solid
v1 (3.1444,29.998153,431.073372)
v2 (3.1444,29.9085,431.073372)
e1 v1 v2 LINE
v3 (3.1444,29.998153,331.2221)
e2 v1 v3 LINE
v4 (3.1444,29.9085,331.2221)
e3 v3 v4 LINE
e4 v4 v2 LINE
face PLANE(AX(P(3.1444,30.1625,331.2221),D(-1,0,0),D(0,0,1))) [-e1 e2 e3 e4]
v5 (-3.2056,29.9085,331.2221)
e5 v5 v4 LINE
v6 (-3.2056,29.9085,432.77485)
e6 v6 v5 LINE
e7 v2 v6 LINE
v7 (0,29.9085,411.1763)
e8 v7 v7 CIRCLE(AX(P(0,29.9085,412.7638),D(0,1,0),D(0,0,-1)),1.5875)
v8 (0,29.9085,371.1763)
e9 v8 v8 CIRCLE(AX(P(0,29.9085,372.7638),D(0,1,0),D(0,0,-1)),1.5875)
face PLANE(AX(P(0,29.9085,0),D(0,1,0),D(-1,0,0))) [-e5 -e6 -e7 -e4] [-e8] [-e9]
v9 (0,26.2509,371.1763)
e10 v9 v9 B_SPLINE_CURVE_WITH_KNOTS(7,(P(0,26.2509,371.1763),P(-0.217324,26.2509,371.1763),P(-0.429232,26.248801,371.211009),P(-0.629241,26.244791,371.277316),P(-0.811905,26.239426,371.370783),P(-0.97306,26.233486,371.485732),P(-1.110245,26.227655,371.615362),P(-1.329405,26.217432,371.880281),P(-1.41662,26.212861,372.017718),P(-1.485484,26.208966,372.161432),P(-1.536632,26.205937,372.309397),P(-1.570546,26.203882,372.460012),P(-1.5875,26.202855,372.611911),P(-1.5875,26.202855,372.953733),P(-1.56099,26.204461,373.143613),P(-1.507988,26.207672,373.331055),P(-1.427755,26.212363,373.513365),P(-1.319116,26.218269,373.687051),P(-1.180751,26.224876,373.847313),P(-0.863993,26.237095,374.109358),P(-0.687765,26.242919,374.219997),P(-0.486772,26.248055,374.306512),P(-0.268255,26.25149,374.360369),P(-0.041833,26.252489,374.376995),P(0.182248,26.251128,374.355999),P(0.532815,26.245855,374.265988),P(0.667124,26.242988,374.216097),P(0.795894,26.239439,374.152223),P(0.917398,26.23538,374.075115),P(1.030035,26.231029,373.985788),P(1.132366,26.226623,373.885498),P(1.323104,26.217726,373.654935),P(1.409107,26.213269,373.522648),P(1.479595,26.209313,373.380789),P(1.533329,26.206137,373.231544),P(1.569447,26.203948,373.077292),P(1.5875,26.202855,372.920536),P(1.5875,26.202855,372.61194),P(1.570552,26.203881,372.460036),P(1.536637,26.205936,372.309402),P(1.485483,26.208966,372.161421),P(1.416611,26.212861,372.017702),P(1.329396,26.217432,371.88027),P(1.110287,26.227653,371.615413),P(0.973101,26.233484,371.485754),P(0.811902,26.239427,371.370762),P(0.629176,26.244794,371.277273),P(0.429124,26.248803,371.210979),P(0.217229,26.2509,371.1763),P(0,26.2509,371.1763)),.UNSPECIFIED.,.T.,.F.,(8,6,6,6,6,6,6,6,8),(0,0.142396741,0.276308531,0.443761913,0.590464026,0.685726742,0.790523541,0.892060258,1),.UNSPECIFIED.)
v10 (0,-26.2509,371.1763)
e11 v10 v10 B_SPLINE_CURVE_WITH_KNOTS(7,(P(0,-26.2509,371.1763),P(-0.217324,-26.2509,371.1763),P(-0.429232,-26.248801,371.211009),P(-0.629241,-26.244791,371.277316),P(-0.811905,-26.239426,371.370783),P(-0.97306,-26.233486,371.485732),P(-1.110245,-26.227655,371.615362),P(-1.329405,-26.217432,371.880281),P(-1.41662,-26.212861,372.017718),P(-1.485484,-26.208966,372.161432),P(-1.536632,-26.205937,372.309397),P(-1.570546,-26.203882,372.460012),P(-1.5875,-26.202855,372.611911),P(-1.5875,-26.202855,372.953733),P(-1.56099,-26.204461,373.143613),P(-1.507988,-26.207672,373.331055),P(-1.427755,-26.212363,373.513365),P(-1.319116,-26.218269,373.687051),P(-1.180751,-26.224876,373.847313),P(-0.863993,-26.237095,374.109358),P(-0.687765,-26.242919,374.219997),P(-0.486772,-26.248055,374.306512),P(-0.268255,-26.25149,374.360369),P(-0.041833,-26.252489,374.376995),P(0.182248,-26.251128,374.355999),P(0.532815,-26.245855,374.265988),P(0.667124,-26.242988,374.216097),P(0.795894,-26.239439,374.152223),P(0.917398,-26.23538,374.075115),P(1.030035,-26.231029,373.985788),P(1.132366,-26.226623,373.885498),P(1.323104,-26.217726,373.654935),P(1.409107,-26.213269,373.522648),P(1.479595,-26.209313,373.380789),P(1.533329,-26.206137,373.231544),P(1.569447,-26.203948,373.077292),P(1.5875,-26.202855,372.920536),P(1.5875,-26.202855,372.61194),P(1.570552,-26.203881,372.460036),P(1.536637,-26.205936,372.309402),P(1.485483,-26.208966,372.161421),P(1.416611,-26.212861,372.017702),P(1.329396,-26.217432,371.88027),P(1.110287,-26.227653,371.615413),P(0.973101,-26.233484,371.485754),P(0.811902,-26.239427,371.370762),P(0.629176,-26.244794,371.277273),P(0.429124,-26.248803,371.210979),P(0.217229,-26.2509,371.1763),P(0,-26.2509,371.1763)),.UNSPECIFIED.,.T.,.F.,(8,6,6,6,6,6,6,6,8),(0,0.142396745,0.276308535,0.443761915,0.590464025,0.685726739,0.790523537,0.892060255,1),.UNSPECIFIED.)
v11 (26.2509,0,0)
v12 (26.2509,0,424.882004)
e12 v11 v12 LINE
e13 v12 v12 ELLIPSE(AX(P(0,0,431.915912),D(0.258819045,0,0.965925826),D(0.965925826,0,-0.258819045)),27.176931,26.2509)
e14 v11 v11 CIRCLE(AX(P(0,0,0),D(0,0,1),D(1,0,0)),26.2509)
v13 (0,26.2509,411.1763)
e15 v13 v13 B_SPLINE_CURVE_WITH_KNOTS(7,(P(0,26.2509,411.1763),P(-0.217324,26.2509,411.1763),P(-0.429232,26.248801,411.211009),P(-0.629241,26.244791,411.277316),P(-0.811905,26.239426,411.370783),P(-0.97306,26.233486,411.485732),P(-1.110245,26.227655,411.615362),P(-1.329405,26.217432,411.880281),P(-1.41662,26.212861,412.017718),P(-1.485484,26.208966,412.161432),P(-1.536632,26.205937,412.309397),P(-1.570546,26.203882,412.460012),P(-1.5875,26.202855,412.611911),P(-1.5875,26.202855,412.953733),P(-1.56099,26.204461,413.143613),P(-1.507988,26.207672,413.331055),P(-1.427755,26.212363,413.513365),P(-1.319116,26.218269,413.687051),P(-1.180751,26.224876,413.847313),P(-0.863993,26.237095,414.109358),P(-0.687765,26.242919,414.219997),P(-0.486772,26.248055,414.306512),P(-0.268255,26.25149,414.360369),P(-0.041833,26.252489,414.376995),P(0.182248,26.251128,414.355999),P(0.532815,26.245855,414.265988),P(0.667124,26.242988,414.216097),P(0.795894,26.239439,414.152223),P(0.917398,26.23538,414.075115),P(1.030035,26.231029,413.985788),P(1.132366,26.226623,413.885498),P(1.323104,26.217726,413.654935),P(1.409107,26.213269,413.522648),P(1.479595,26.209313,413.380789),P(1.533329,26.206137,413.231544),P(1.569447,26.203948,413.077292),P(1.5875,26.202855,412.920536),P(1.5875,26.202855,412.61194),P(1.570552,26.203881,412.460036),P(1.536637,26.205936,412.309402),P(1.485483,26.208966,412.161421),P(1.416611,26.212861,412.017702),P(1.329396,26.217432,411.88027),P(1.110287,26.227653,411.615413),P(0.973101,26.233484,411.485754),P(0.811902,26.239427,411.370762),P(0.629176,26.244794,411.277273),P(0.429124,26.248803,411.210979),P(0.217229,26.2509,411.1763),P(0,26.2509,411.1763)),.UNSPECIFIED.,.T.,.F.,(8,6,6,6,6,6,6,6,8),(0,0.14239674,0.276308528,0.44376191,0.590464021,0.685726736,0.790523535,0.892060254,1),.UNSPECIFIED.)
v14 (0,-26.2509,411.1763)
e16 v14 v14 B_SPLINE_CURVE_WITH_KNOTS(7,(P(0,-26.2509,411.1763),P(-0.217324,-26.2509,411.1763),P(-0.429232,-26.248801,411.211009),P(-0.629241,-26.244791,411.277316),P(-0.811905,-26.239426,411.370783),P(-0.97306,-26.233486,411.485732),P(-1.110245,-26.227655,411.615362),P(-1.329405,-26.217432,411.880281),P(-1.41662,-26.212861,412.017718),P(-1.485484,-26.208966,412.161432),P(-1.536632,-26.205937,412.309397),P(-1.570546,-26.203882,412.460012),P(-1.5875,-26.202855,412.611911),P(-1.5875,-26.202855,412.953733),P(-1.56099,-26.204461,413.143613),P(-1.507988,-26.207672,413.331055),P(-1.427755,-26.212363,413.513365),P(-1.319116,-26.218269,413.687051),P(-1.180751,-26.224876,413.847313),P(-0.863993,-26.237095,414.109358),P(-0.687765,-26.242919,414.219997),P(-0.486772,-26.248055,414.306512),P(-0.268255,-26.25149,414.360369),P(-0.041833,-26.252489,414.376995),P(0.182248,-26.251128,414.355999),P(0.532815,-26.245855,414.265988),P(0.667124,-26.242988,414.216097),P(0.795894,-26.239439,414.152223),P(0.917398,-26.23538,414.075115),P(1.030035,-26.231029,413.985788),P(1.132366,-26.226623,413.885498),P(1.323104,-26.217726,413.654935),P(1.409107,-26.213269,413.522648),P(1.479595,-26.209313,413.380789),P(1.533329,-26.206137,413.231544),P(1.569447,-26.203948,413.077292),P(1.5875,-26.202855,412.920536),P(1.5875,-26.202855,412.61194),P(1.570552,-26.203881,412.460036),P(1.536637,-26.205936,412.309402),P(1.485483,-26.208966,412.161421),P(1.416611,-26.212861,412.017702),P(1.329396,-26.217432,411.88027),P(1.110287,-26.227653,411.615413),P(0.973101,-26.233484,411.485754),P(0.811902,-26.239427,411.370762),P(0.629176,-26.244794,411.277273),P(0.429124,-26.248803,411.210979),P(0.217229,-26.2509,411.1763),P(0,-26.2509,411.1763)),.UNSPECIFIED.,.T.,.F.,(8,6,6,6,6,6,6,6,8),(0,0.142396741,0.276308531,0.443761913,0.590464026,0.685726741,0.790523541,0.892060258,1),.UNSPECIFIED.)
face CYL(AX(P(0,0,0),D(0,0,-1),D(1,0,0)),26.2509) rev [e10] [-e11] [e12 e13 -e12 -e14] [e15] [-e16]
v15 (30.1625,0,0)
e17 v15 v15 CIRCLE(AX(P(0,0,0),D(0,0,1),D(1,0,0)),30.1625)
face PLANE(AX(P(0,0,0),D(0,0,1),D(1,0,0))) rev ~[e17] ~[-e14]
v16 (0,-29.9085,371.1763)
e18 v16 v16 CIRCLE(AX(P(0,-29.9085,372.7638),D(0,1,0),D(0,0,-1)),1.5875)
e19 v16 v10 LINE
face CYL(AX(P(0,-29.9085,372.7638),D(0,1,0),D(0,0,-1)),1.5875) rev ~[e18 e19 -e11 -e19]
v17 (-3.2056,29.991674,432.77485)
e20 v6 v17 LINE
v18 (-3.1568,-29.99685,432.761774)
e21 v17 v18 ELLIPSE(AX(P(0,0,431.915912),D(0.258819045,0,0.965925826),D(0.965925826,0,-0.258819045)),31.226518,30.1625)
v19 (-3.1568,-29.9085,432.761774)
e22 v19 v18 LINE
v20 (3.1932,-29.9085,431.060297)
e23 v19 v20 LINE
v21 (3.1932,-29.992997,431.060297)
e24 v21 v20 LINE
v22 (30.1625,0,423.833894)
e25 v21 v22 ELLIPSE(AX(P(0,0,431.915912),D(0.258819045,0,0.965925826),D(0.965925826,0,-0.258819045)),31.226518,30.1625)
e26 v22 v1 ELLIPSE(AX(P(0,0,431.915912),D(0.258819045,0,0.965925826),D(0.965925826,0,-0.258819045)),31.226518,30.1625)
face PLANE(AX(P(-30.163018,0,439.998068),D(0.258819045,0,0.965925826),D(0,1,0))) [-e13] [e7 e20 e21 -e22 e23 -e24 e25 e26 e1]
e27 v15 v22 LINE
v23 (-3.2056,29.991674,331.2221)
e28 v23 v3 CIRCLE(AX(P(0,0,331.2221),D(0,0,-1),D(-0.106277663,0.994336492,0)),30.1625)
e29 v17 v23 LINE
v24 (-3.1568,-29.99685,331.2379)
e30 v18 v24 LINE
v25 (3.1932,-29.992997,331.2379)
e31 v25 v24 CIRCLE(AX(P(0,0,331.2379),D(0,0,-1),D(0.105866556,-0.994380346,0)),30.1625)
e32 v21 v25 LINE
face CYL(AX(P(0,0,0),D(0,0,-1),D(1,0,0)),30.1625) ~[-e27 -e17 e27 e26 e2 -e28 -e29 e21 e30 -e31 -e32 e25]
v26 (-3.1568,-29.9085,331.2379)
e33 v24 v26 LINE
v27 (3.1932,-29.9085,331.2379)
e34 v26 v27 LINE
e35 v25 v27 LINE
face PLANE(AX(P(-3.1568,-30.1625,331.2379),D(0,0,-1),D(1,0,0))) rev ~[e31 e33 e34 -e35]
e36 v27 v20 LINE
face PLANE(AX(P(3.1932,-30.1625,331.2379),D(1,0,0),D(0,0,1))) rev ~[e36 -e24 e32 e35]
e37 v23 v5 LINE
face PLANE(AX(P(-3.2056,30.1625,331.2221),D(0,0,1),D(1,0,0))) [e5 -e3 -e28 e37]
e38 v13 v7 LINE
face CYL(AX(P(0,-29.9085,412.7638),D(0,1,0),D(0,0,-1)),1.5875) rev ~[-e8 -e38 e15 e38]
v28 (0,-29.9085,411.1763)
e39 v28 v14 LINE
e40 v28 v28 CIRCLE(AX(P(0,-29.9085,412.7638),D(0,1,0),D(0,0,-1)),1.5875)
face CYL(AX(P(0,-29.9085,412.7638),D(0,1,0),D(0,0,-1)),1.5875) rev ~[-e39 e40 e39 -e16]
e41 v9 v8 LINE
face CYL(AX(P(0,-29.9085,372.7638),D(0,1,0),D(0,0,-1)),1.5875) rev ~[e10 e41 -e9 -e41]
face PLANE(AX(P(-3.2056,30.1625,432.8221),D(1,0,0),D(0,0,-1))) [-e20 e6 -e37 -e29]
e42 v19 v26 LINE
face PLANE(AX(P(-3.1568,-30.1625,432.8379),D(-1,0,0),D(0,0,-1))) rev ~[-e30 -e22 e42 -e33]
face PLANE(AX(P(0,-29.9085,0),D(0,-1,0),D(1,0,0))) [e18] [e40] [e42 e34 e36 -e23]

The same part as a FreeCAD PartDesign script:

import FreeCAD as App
import Part
import Sketcher
from FreeCAD import Vector
Q = App.Units.Quantity

doc = App.newDocument("Part")
params = doc.addObject("Spreadsheet::Sheet", "Params")
for row, (alias, value) in enumerate([
    ("sketch1_diameter", "2.375 in"),
    ("sketch1_diameter2", "2.067 in"),
    ("pad1_length", "440 mm"),
    ("sketch2_height", "4 in"),
    ("pocket1_length", "1 in"),
    ("sketch3_height", "4 in"),
    ("sketch3_width", "0.25 in"),
    ("pocket2_length", "0.01 in"),
    ("sketch4_height", "4 in"),
    ("sketch4_width", "0.25 in"),
    ("pocket3_length", "0.01 in"),
    ("sketch5_diameter", "0.125 in"),
    ("hole_diameter", "0.125 in"),
], start=1):
    params.set(f"A{row}", alias)
    params.set(f"B{row}", "=" + value)
    params.setAlias(f"B{row}", alias)

body = doc.addObject("PartDesign::Body", "Body")

# Sketch on XY plane
sketch1 = body.newObject("Sketcher::SketchObject", "Sketch")
sketch1.AttachmentSupport = (doc.getObject("XY_Plane"), [""])
sketch1.MapMode = "FlatFace"
sketch1.addGeometry([
    Part.Circle(Vector(0, 0, 0), Vector(0, 0, 1), 30),
    Part.Circle(Vector(0, 0, 0), Vector(0, 0, 1), 26),
], False)
sketch1.addConstraint([
    Sketcher.Constraint("Coincident", 0, 3, -1, 1),
    Sketcher.Constraint("Coincident", 1, 3, -1, 1),
    Sketcher.Constraint("Diameter", 0, Q("2.375 in")),
    Sketcher.Constraint("Diameter", 1, Q("2.067 in")),
])
sketch1.setExpression("Constraints[2]", "Params.sketch1_diameter")
sketch1.setExpression("Constraints[3]", "Params.sketch1_diameter2")
pad1 = body.newObject("PartDesign::Pad", "Pad")
pad1.Profile = sketch1
pad1.setExpression("Length", "Params.pad1_length")

# Sketch on an angled plane
sketch2 = body.newObject("Sketcher::SketchObject", "Sketch001")
sketch2.Placement = App.Placement(Vector(-30.1625, 0, 440), App.Rotation(Vector(0, 1, 0), Vector(-0.965925826, 0, 0.258819045), Vector(0.258819045, 0, 0.965925826), "ZXY"))
sketch2.addGeometry([
    Part.LineSegment(Vector(-32, 7, 0), Vector(-32, -95, 0)),
    Part.LineSegment(Vector(-32, -95, 0), Vector(64, -95, 0)),
    Part.LineSegment(Vector(64, -95, 0), Vector(64, 7, 0)),
    Part.LineSegment(Vector(64, 7, 0), Vector(-32, 7, 0)),
], False)
sketch2.addConstraint([
    Sketcher.Constraint("Coincident", 0, 2, 1, 1),
    Sketcher.Constraint("Coincident", 1, 2, 2, 1),
    Sketcher.Constraint("Coincident", 2, 2, 3, 1),
    Sketcher.Constraint("Coincident", 3, 2, 0, 1),
    Sketcher.Constraint("Vertical", 0),
    Sketcher.Constraint("Horizontal", 1),
    Sketcher.Constraint("Vertical", 2),
    Sketcher.Constraint("Horizontal", 3),
    Sketcher.Constraint("DistanceY", 0, 2, 0, 1, Q("4 in")),
    Sketcher.Constraint("DistanceX", 1, 1, 1, 2, Q("3.7811 in")),
    Sketcher.Constraint("DistanceY", 0, 2, -1, 1, Q("3.7381 in")),
    Sketcher.Constraint("DistanceX", 0, 2, -1, 1, Q("31.6137 mm")),
])
sketch2.setExpression("Constraints[8]", "Params.sketch2_height")
pocket1 = body.newObject("PartDesign::Pocket", "Pocket")
pocket1.Profile = sketch2
pocket1.setExpression("Length", "Params.pocket1_length")
pocket1.Reversed = True

# Sketch on XZ plane
sketch3 = body.newObject("Sketcher::SketchObject", "Sketch002")
sketch3.AttachmentSupport = (doc.getObject("XZ_Plane"), [""])
sketch3.MapMode = "FlatFace"
sketch3.AttachmentOffset = App.Placement(Vector(0, 0, -1.1875 * 25.4), App.Rotation())
sketch3.addGeometry([
    Part.LineSegment(Vector(-3, 433, 0), Vector(3, 433, 0)),
    Part.LineSegment(Vector(3, 433, 0), Vector(3, 331, 0)),
    Part.LineSegment(Vector(3, 331, 0), Vector(-3, 331, 0)),
    Part.LineSegment(Vector(-3, 331, 0), Vector(-3, 433, 0)),
], False)
sketch3.addConstraint([
    Sketcher.Constraint("Coincident", 0, 2, 1, 1),
    Sketcher.Constraint("Coincident", 1, 2, 2, 1),
    Sketcher.Constraint("Coincident", 2, 2, 3, 1),
    Sketcher.Constraint("Coincident", 3, 2, 0, 1),
    Sketcher.Constraint("Horizontal", 0),
    Sketcher.Constraint("Vertical", 1),
    Sketcher.Constraint("Horizontal", 2),
    Sketcher.Constraint("Vertical", 3),
    Sketcher.Constraint("DistanceY", 1, 2, 1, 1, Q("4 in")),
    Sketcher.Constraint("DistanceX", 0, 1, 0, 2, Q("0.25 in")),
    Sketcher.Constraint("DistanceX", -1, 1, 0, 2, Q("0.1238 in")),
    Sketcher.Constraint("DistanceY", -1, 1, 0, 2, Q("432.822 mm")),
])
sketch3.setExpression("Constraints[8]", "Params.sketch3_height")
sketch3.setExpression("Constraints[9]", "Params.sketch3_width")
pocket2 = body.newObject("PartDesign::Pocket", "Pocket001")
pocket2.Profile = sketch3
pocket2.setExpression("Length", "Params.pocket2_length")
pocket2.Reversed = True

# Sketch on XZ plane
sketch4 = body.newObject("Sketcher::SketchObject", "Sketch003")
sketch4.AttachmentSupport = (doc.getObject("XZ_Plane"), [""])
sketch4.MapMode = "FlatFace"
sketch4.AttachmentOffset = App.Placement(Vector(0, 0, 1.1875 * 25.4), App.Rotation())
sketch4.addGeometry([
    Part.LineSegment(Vector(-3, 433, 0), Vector(-3, 331, 0)),
    Part.LineSegment(Vector(-3, 331, 0), Vector(3, 331, 0)),
    Part.LineSegment(Vector(3, 331, 0), Vector(3, 433, 0)),
    Part.LineSegment(Vector(3, 433, 0), Vector(-3, 433, 0)),
], False)
sketch4.addConstraint([
    Sketcher.Constraint("Coincident", 0, 2, 1, 1),
    Sketcher.Constraint("Coincident", 1, 2, 2, 1),
    Sketcher.Constraint("Coincident", 2, 2, 3, 1),
    Sketcher.Constraint("Coincident", 3, 2, 0, 1),
    Sketcher.Constraint("Vertical", 0),
    Sketcher.Constraint("Horizontal", 1),
    Sketcher.Constraint("Vertical", 2),
    Sketcher.Constraint("Horizontal", 3),
    Sketcher.Constraint("DistanceY", 0, 2, 0, 1, Q("4 in")),
    Sketcher.Constraint("DistanceX", 1, 1, 1, 2, Q("0.25 in")),
    Sketcher.Constraint("DistanceX", 0, 2, -1, 1, Q("3.1568 mm")),
    Sketcher.Constraint("DistanceY", -1, 1, 0, 2, Q("331.238 mm")),
])
sketch4.setExpression("Constraints[8]", "Params.sketch4_height")
sketch4.setExpression("Constraints[9]", "Params.sketch4_width")
pocket3 = body.newObject("PartDesign::Pocket", "Pocket002")
pocket3.Profile = sketch4
pocket3.setExpression("Length", "Params.pocket3_length")

# Sketch on XZ plane
sketch5 = body.newObject("Sketcher::SketchObject", "Sketch004")
sketch5.AttachmentSupport = (doc.getObject("XZ_Plane"), [""])
sketch5.MapMode = "FlatFace"
sketch5.AttachmentOffset = App.Placement(Vector(0, 0, 1.1775 * 25.4), App.Rotation())
sketch5.addGeometry([
    Part.Circle(Vector(0, 412.8, 0), Vector(0, 0, 1), 1.6),
    Part.Circle(Vector(0, 372.8, 0), Vector(0, 0, 1), 1.6),
], False)
sketch5.addConstraint([
    Sketcher.Constraint("Equal", 0, 1),
    Sketcher.Constraint("PointOnObject", 0, 3, -2),
    Sketcher.Constraint("PointOnObject", 1, 3, -2),
    Sketcher.Constraint("Diameter", 0, Q("0.125 in")),
    Sketcher.Constraint("DistanceY", 1, 3, 0, 3, Q("1.5748 in")),
    Sketcher.Constraint("DistanceY", -1, 1, 0, 3, Q("412.7638 mm")),
])
sketch5.setExpression("Constraints[3]", "Params.sketch5_diameter")
doc.recompute()
hole = body.newObject("PartDesign::Hole", "Hole")
hole.Profile = sketch5
hole.ThreadType = "None"
hole.setExpression("Diameter", "Params.hole_diameter")
hole.DepthType = "ThroughAll"

doc.recompute()
